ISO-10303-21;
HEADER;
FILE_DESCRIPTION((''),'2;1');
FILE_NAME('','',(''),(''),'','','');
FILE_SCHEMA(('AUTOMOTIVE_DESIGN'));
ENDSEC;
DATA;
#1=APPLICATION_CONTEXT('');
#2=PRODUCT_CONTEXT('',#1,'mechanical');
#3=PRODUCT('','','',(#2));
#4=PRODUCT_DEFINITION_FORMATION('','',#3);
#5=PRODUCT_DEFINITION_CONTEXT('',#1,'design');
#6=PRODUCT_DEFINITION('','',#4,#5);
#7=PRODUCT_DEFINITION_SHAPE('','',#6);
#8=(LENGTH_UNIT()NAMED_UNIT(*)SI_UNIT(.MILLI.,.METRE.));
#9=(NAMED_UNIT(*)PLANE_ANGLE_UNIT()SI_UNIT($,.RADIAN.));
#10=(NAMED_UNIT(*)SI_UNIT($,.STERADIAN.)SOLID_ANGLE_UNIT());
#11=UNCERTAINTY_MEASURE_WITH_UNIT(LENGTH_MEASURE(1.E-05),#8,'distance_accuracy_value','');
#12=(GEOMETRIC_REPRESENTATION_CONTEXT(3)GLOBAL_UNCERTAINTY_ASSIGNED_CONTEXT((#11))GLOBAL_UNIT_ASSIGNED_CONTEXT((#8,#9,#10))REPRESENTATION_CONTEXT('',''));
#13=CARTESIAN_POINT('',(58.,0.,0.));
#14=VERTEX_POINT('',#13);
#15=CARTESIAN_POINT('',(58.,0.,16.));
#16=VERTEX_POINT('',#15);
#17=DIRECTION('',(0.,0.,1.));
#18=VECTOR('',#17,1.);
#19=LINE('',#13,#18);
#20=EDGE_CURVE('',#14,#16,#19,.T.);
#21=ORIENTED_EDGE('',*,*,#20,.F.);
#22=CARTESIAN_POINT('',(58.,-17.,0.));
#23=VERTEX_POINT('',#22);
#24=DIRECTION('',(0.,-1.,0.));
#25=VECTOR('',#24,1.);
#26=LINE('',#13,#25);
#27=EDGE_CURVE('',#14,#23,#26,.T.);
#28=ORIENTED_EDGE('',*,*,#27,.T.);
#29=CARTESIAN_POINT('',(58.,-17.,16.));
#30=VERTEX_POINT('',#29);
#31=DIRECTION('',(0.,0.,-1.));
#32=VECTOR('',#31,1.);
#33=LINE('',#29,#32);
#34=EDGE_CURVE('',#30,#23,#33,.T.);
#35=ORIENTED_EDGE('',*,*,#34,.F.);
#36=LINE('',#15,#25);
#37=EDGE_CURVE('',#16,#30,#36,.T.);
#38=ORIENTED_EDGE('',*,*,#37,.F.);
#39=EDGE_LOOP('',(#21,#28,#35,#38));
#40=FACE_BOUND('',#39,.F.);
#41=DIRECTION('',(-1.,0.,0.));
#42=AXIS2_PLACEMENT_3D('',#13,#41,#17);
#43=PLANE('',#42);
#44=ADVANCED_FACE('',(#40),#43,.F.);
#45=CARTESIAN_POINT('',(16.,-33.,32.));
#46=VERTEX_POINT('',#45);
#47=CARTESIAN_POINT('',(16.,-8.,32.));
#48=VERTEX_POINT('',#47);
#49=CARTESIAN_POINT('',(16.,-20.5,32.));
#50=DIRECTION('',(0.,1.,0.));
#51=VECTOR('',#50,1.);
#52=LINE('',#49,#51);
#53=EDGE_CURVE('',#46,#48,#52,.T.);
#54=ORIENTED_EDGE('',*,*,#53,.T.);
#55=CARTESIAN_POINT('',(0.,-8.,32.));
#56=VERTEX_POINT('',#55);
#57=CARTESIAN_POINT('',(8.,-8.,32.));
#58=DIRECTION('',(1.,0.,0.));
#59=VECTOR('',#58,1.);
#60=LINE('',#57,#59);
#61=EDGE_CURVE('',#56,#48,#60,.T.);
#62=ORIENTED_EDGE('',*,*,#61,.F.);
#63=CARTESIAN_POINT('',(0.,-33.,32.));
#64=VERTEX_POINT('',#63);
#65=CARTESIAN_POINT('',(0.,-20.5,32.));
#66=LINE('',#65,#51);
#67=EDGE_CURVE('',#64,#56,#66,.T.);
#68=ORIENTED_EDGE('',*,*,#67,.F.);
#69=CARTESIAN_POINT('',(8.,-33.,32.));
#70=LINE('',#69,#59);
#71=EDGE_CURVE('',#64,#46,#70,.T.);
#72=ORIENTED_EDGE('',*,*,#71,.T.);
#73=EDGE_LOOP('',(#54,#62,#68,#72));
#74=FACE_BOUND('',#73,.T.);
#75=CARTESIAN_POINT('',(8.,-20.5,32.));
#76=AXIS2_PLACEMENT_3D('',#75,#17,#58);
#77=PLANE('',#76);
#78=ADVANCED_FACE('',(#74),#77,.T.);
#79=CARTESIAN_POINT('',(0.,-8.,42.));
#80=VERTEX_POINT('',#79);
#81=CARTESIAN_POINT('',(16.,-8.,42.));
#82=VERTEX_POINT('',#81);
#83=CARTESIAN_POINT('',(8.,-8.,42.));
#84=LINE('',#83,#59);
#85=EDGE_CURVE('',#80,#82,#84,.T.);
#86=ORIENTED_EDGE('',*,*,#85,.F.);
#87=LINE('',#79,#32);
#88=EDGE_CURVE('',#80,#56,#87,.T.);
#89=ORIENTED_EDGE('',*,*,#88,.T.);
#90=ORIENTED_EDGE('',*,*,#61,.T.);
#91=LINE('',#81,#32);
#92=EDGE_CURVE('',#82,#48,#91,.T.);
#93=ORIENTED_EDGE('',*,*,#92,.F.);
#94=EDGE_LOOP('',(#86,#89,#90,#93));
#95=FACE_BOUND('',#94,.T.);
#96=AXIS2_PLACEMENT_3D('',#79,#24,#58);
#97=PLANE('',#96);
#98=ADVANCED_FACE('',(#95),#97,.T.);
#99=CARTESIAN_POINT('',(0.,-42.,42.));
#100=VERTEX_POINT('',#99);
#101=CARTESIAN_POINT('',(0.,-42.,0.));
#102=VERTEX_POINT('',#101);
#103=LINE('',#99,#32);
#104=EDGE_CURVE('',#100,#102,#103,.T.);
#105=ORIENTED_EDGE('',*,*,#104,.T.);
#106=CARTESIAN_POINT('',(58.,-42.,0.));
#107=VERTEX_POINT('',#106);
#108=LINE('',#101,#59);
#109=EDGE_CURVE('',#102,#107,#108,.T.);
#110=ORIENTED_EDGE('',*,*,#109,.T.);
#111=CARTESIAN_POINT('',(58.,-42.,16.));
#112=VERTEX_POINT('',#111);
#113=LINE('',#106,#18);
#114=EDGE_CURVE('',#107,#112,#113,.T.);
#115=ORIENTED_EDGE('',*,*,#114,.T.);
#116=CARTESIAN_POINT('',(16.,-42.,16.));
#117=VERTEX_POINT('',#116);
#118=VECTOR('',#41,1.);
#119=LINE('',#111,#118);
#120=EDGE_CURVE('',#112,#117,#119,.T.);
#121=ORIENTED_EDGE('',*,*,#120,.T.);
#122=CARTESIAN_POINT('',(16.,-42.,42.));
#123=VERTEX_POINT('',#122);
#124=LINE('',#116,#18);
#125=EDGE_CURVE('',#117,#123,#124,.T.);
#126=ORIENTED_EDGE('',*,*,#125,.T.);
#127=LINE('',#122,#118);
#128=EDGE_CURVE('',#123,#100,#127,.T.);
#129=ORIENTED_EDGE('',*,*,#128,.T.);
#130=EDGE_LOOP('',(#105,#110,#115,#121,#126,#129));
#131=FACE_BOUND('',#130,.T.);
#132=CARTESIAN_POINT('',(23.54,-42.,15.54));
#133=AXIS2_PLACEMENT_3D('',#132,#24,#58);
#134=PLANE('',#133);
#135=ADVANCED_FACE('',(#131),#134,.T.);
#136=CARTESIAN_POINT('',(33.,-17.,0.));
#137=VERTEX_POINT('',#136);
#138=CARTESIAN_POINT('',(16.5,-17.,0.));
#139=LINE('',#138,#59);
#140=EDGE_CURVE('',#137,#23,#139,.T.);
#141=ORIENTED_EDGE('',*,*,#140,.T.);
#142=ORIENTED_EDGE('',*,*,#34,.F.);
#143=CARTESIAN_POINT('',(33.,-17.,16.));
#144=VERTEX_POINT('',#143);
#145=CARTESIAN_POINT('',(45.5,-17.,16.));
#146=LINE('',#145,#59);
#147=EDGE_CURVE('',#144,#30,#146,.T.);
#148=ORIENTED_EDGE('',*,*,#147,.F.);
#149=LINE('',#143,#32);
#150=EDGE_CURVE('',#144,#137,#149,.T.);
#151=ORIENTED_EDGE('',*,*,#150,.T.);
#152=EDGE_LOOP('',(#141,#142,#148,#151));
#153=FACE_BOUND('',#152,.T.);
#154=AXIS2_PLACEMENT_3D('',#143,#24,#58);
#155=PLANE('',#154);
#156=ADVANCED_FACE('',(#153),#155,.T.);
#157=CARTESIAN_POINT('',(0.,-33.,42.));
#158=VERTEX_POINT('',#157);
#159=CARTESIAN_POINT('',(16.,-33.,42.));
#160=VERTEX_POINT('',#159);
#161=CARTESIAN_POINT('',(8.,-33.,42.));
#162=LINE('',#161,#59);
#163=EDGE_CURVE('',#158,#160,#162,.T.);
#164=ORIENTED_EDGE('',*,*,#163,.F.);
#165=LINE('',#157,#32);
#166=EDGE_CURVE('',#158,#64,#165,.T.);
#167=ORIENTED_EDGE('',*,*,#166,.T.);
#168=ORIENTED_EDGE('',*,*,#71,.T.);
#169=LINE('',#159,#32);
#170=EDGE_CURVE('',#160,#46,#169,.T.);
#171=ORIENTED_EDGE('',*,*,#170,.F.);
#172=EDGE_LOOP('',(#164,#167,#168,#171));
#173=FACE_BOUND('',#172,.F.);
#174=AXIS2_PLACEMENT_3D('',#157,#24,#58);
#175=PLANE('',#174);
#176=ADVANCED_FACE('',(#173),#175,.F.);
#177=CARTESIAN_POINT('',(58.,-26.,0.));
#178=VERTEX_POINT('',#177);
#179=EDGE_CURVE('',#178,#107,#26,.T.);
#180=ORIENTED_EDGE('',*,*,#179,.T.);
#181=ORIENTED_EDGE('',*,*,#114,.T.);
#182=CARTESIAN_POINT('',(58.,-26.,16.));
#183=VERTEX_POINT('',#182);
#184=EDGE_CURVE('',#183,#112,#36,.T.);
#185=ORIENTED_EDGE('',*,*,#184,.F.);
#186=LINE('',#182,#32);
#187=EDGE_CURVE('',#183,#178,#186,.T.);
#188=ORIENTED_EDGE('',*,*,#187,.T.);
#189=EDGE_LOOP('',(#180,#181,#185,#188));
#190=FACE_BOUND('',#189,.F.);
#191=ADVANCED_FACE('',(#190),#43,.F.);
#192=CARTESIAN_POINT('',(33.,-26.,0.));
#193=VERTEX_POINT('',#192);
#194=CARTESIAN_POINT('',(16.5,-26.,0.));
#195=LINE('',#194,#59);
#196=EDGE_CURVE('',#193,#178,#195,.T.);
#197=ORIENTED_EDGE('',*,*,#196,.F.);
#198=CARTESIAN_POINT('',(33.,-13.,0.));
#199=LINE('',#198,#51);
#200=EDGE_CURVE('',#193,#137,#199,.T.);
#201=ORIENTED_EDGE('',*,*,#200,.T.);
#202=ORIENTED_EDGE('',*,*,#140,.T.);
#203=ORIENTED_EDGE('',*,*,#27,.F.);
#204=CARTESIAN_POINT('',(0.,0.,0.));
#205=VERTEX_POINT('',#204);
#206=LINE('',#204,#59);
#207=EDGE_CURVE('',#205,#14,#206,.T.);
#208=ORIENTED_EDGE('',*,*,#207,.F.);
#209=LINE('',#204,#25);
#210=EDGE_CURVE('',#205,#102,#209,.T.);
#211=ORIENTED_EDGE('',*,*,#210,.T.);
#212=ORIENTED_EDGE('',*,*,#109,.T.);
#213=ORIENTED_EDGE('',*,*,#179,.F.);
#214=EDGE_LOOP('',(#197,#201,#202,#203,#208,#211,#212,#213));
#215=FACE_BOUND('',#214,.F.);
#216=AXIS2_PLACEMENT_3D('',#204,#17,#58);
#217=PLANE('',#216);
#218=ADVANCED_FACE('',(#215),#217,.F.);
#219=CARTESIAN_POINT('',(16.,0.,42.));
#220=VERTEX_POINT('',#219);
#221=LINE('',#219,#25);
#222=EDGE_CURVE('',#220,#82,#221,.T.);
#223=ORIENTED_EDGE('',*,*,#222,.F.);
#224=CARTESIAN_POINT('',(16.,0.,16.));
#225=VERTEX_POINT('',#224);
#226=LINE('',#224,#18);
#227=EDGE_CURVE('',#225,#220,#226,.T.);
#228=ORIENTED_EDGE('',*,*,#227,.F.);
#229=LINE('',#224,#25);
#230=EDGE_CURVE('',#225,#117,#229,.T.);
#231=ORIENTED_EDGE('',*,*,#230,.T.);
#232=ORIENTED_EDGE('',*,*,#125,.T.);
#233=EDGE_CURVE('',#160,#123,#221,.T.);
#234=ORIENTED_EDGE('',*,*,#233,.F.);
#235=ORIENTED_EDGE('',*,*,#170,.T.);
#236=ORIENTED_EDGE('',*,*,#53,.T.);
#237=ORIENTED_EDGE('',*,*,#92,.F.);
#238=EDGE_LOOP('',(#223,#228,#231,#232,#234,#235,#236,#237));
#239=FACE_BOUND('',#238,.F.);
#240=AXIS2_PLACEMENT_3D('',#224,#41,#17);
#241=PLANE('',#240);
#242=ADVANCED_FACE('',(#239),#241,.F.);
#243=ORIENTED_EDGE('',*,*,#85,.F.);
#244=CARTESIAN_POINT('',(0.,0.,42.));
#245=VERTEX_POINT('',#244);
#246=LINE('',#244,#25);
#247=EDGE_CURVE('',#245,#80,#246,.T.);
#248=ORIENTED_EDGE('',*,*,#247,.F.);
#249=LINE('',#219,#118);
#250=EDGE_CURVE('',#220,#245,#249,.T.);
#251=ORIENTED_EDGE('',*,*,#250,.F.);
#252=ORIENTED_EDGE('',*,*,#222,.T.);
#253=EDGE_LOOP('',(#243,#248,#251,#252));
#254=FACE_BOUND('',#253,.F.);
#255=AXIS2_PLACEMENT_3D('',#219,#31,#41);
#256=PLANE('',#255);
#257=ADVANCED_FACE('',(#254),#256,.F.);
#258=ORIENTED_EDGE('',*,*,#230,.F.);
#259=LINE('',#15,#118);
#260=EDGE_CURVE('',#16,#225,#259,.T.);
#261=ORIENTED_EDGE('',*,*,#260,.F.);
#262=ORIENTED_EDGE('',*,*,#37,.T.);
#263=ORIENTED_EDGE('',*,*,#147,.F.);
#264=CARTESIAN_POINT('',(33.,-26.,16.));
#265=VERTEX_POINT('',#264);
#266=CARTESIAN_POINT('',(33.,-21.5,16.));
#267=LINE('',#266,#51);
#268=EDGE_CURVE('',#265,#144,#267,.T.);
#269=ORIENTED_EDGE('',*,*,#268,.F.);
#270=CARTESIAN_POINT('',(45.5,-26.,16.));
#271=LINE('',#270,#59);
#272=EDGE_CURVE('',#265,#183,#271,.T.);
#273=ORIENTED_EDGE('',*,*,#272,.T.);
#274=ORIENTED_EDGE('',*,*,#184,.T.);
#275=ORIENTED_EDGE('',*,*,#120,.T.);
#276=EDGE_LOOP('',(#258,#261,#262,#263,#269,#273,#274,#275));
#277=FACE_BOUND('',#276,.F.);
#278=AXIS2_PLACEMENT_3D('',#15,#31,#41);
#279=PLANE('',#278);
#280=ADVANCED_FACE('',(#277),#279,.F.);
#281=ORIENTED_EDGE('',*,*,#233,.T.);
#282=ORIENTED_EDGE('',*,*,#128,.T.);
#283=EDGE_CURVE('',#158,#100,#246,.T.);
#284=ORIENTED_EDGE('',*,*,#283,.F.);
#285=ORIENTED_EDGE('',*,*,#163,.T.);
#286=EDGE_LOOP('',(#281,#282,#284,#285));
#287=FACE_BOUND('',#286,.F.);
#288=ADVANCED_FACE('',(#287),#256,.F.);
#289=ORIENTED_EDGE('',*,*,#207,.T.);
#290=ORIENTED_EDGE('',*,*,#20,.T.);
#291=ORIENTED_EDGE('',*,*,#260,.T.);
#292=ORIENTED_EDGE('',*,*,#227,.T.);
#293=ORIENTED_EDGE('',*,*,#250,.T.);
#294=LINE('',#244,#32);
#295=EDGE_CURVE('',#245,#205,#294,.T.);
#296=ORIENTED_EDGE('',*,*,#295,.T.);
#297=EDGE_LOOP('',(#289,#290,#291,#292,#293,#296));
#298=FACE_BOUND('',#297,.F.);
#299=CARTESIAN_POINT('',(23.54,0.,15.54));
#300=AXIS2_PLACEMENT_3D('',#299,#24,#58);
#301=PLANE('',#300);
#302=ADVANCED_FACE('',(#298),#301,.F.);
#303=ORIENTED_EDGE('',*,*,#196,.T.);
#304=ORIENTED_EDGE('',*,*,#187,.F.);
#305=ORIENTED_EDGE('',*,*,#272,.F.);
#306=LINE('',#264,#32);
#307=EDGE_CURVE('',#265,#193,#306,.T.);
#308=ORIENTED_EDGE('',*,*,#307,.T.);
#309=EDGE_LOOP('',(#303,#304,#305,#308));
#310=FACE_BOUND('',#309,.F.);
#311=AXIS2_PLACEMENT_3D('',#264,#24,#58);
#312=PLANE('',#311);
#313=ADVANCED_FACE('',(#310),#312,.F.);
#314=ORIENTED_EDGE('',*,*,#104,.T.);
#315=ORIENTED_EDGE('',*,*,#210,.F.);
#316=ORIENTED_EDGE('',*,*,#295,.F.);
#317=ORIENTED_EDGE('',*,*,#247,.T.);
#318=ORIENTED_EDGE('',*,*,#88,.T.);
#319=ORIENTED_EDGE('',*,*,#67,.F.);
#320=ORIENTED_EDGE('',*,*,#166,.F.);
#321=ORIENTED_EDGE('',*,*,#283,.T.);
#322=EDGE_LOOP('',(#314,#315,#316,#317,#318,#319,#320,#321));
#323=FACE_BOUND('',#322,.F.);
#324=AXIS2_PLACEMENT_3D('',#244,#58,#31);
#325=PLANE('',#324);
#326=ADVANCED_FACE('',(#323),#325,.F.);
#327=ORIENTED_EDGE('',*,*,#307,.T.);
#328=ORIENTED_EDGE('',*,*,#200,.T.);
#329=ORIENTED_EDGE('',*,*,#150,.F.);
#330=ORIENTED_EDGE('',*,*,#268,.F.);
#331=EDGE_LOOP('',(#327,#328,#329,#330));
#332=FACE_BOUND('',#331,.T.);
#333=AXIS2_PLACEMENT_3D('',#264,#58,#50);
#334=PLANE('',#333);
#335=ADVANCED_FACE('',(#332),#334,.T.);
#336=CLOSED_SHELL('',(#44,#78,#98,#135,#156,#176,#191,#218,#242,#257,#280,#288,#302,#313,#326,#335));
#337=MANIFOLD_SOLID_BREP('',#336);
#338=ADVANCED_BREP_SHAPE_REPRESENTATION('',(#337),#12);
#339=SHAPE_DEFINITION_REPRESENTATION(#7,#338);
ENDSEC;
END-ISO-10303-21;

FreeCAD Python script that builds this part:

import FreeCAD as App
import Part
import Sketcher

doc = App.newDocument("Part")
params = doc.addObject("Spreadsheet::Sheet", "Params")
for row, (alias, value) in enumerate([
    ("sketch1_width", "58 mm"),
    ("sketch1_width2", "42 mm"),
    ("pad1_length", "42 mm"),
    ("sketch2_width", "16 mm"),
    ("sketch2_height", "25 mm"),
    ("pocket1_length", "10 mm"),
    ("sketch3_width", "25 mm"),
    ("sketch3_height", "9 mm"),
], start=1):
    params.set(f"A{row}", alias)
    params.set(f"B{row}", "=" + value)
    params.setAlias(f"B{row}", alias)

body = doc.addObject("PartDesign::Body", "Body")

sketch1 = body.newObject("Sketcher::SketchObject", "Sketch")
sketch1.AttachmentSupport = (doc.getObject("XZ_Plane"), [""])
sketch1.MapMode = "FlatFace"
sketch1.addGeometry([
    Part.LineSegment(App.Vector(0, 42, 0), App.Vector(0, 0, 0)),
    Part.LineSegment(App.Vector(0, 0, 0), App.Vector(58, 0, 0)),
    Part.LineSegment(App.Vector(58, 0, 0), App.Vector(58, 16, 0)),
    Part.LineSegment(App.Vector(58, 16, 0), App.Vector(16, 16, 0)),
    Part.LineSegment(App.Vector(16, 16, 0), App.Vector(16, 42, 0)),
    Part.LineSegment(App.Vector(16, 42, 0), App.Vector(0, 42, 0)),
], False)
sketch1.addConstraint([
    Sketcher.Constraint("Coincident", 0, 2, 1, 1),
    Sketcher.Constraint("Coincident", 1, 2, 2, 1),
    Sketcher.Constraint("Coincident", 2, 2, 3, 1),
    Sketcher.Constraint("Coincident", 3, 2, 4, 1),
    Sketcher.Constraint("Coincident", 4, 2, 5, 1),
    Sketcher.Constraint("Coincident", 5, 2, 0, 1),
    Sketcher.Constraint("Vertical", 0),
    Sketcher.Constraint("Horizontal", 1),
    Sketcher.Constraint("Vertical", 2),
    Sketcher.Constraint("Horizontal", 3),
    Sketcher.Constraint("Vertical", 4),
    Sketcher.Constraint("Horizontal", 5),
    Sketcher.Constraint("Coincident", 0, 2, -1, 1),
    Sketcher.Constraint("Equal", 3, 0),
    Sketcher.Constraint("Equal", 5, 2),
    Sketcher.Constraint("DistanceX", 1, 1, 1, 2, 58.0),
    Sketcher.Constraint("DistanceX", 3, 2, 3, 1, 42.0),
])
sketch1.setExpression("Constraints[15]", "Params.sketch1_width")
sketch1.setExpression("Constraints[16]", "Params.sketch1_width2")
pad1 = body.newObject("PartDesign::Pad", "Pad")
pad1.Profile = sketch1
pad1.setExpression("Length", "Params.pad1_length")

sketch2 = body.newObject("Sketcher::SketchObject", "Sketch001")
sketch2.AttachmentSupport = (doc.getObject("XY_Plane"), [""])
sketch2.MapMode = "FlatFace"
sketch2.AttachmentOffset = App.Placement(App.Vector(0, 0, 42), App.Rotation())
sketch2.addGeometry([
    Part.LineSegment(App.Vector(0, -8, 0), App.Vector(0, -33, 0)),
    Part.LineSegment(App.Vector(0, -33, 0), App.Vector(16, -33, 0)),
    Part.LineSegment(App.Vector(16, -33, 0), App.Vector(16, -8, 0)),
    Part.LineSegment(App.Vector(16, -8, 0), App.Vector(0, -8, 0)),
], False)
sketch2.addConstraint([
    Sketcher.Constraint("Coincident", 0, 2, 1, 1),
    Sketcher.Constraint("Coincident", 1, 2, 2, 1),
    Sketcher.Constraint("Coincident", 2, 2, 3, 1),
    Sketcher.Constraint("Coincident", 3, 2, 0, 1),
    Sketcher.Constraint("Vertical", 0),
    Sketcher.Constraint("Horizontal", 1),
    Sketcher.Constraint("Vertical", 2),
    Sketcher.Constraint("Horizontal", 3),
    Sketcher.Constraint("PointOnObject", 0, 2, -2),
    Sketcher.Constraint("DistanceX", 1, 1, 1, 2, 16.0),
    Sketcher.Constraint("DistanceY", 0, 2, 0, 1, 25.0),
    Sketcher.Constraint("DistanceY", 0, 2, -1, 1, 33.0),
])
sketch2.setExpression("Constraints[9]", "Params.sketch2_width")
sketch2.setExpression("Constraints[10]", "Params.sketch2_height")
pocket1 = body.newObject("PartDesign::Pocket", "Pocket")
pocket1.Profile = sketch2
pocket1.setExpression("Length", "Params.pocket1_length")

sketch3 = body.newObject("Sketcher::SketchObject", "Sketch002")
sketch3.AttachmentSupport = (doc.getObject("XY_Plane"), [""])
sketch3.MapMode = "FlatFace"
sketch3.AttachmentOffset = App.Placement(App.Vector(0, 0, 16), App.Rotation())
sketch3.addGeometry([
    Part.LineSegment(App.Vector(33, -17, 0), App.Vector(33, -26, 0)),
    Part.LineSegment(App.Vector(33, -26, 0), App.Vector(58, -26, 0)),
    Part.LineSegment(App.Vector(58, -26, 0), App.Vector(58, -17, 0)),
    Part.LineSegment(App.Vector(58, -17, 0), App.Vector(33, -17, 0)),
], False)
sketch3.addConstraint([
    Sketcher.Constraint("Coincident", 0, 2, 1, 1),
    Sketcher.Constraint("Coincident", 1, 2, 2, 1),
    Sketcher.Constraint("Coincident", 2, 2, 3, 1),
    Sketcher.Constraint("Coincident", 3, 2, 0, 1),
    Sketcher.Constraint("Vertical", 0),
    Sketcher.Constraint("Horizontal", 1),
    Sketcher.Constraint("Vertical", 2),
    Sketcher.Constraint("Horizontal", 3),
    Sketcher.Constraint("DistanceX", 1, 1, 1, 2, 25.0),
    Sketcher.Constraint("DistanceY", 0, 2, 0, 1, 9.0),
    Sketcher.Constraint("DistanceX", -1, 1, 0, 2, 33.0),
    Sketcher.Constraint("DistanceY", 0, 2, -1, 1, 26.0),
])
sketch3.setExpression("Constraints[8]", "Params.sketch3_width")
sketch3.setExpression("Constraints[9]", "Params.sketch3_height")
pocket2 = body.newObject("PartDesign::Pocket", "Pocket001")
pocket2.Profile = sketch3
pocket2.Type = "ThroughAll"

doc.recompute()
